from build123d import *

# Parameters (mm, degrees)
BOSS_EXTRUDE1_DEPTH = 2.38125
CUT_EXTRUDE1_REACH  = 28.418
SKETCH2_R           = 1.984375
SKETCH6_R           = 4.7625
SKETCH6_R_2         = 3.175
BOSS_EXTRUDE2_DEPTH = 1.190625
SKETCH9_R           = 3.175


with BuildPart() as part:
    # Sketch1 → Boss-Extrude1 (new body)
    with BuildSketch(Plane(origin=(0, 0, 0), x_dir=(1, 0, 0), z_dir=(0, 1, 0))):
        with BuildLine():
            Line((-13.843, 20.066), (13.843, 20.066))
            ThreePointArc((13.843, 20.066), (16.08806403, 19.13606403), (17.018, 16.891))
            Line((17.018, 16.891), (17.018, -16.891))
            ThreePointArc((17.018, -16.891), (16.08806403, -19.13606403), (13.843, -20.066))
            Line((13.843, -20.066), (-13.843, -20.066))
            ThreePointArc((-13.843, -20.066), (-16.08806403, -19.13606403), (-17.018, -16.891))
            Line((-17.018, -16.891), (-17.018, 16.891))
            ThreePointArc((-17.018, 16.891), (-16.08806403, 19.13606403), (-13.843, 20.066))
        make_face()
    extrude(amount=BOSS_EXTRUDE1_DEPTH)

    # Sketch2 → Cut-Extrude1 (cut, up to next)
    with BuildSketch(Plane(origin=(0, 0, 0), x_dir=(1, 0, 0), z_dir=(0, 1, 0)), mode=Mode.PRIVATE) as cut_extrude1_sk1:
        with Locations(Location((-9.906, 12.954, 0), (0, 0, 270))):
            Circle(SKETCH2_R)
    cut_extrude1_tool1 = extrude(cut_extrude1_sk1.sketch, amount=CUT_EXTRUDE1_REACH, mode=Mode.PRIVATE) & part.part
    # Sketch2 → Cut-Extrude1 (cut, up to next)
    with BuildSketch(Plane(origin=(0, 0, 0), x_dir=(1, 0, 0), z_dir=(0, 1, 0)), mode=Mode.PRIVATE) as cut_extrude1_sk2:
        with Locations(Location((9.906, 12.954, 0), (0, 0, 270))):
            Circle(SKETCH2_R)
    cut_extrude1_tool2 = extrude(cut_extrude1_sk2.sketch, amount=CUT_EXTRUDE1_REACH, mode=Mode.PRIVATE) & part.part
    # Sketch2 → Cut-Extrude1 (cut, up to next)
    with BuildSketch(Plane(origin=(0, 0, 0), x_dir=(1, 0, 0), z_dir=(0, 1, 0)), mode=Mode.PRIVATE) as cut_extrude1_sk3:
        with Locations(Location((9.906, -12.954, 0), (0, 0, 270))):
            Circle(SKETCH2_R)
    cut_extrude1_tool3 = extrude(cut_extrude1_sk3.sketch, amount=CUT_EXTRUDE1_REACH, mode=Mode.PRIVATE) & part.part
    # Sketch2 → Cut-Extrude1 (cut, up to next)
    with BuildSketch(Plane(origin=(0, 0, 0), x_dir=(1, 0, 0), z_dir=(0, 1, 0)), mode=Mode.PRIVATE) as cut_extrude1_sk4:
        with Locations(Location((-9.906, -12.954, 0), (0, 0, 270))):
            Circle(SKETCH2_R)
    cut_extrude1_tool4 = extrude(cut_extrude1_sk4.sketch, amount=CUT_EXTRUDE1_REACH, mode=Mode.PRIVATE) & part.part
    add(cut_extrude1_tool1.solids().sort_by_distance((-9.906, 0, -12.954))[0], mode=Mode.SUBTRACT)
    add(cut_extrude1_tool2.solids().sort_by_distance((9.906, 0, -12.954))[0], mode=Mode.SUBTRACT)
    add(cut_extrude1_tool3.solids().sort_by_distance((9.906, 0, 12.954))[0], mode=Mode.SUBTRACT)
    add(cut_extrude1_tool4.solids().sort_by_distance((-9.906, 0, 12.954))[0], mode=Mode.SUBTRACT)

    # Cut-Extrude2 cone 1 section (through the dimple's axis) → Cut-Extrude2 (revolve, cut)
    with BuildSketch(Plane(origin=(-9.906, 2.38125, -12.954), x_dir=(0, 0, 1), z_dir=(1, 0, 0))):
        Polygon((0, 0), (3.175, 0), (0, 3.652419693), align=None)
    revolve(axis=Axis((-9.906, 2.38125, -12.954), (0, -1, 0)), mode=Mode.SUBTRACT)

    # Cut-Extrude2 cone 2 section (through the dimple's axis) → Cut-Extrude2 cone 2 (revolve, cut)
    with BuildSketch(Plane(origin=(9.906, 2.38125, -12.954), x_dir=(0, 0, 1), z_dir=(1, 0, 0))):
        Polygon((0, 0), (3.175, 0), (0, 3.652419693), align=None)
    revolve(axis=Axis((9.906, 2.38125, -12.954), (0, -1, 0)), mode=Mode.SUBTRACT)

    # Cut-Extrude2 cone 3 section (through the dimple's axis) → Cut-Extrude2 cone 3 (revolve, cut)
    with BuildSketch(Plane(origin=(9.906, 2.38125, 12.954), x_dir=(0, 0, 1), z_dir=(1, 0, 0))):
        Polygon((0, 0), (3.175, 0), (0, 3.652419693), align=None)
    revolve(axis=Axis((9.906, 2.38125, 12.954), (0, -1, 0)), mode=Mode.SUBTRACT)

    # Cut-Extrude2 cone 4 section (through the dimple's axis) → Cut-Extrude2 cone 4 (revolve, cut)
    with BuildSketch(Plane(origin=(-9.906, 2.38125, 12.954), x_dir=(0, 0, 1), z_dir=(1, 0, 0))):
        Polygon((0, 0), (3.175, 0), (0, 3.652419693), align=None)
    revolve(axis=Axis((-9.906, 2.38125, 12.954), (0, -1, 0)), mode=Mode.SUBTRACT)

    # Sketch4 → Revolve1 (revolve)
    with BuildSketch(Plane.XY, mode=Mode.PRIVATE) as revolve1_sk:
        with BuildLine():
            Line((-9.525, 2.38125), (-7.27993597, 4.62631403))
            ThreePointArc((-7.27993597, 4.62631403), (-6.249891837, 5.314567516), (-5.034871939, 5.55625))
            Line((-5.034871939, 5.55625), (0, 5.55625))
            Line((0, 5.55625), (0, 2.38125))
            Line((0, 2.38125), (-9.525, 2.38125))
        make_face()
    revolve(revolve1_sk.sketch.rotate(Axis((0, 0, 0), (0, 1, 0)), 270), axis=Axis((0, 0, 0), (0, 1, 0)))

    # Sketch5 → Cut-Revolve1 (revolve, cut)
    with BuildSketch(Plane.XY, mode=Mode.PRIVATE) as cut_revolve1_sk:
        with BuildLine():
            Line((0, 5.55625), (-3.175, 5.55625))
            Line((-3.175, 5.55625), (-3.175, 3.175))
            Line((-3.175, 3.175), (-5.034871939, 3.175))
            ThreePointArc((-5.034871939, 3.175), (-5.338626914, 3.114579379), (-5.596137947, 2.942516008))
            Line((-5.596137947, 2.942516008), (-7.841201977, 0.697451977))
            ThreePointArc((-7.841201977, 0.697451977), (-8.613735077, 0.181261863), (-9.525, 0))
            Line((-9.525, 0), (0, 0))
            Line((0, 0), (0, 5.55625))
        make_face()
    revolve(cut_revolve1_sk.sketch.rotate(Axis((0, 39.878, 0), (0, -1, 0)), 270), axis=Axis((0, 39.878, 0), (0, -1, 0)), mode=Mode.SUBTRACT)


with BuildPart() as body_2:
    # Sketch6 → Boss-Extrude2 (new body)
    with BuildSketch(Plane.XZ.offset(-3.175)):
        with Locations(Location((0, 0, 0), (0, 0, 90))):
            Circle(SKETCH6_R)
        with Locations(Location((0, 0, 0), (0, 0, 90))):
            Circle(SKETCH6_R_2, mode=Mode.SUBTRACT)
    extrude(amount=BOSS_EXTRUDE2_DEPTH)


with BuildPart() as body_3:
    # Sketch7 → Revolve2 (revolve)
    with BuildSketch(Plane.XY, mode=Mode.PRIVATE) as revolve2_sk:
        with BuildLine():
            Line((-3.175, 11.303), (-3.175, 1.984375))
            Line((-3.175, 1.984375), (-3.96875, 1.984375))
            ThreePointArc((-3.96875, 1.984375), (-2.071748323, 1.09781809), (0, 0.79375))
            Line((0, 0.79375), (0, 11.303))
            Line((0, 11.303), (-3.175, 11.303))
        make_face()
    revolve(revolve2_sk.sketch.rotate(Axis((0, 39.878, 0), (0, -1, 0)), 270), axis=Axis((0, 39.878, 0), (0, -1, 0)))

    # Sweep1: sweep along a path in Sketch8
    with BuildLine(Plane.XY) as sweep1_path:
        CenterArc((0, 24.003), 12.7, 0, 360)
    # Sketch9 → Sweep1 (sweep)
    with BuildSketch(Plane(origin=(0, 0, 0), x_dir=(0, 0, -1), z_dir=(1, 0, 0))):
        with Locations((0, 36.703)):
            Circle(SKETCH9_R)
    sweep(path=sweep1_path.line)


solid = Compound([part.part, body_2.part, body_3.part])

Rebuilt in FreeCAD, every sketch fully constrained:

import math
import FreeCAD as App
import Part
import Sketcher

V = App.Vector
Q = App.Units.Quantity

doc = App.newDocument("Part")
body = doc.addObject("PartDesign::Body", "Body")

# Sketch on XZ plane
sketch1 = body.newObject("Sketcher::SketchObject", "Sketch")
sketch1.AttachmentSupport = (doc.getObject("XZ_Plane"), [""])
sketch1.MapMode = "FlatFace"
sketch1.addGeometry([
    Part.LineSegment(V(13.8, -20.1, 0), V(-13.8, -20.1, 0)),  # 0
    Part.ArcOfCircle(Part.Circle(V(-13.8, -16.9, 0), V(0, 0, 1), 3.2), math.radians(-180), math.radians(-90)),  # 1
    Part.LineSegment(V(-17, -16.9, 0), V(-17, 16.9, 0)),  # 2
    Part.ArcOfCircle(Part.Circle(V(-13.8, 16.9, 0), V(0, 0, 1), 3.2), math.radians(90), math.radians(180)),  # 3
    Part.LineSegment(V(-13.8, 20.1, 0), V(13.8, 20.1, 0)),  # 4
    Part.ArcOfCircle(Part.Circle(V(13.8, 16.9, 0), V(0, 0, 1), 3.2), math.radians(0), math.radians(90)),  # 5
    Part.LineSegment(V(17, 16.9, 0), V(17, -16.9, 0)),  # 6
    Part.ArcOfCircle(Part.Circle(V(13.8, -16.9, 0), V(0, 0, 1), 3.2), math.radians(-90), math.radians(0)),  # 7
], False)
sketch1.addConstraint([
    Sketcher.Constraint("Tangent", 0, 2, 1, 2),
    Sketcher.Constraint("Tangent", 1, 1, 2, 1),
    Sketcher.Constraint("Tangent", 2, 2, 3, 2),
    Sketcher.Constraint("Tangent", 3, 1, 4, 1),
    Sketcher.Constraint("Tangent", 4, 2, 5, 2),
    Sketcher.Constraint("Tangent", 5, 1, 6, 1),
    Sketcher.Constraint("Tangent", 6, 2, 7, 2),
    Sketcher.Constraint("Tangent", 7, 1, 0, 1),
    Sketcher.Constraint("Horizontal", 0),
    Sketcher.Constraint("Vertical", 2),
    Sketcher.Constraint("Horizontal", 4),
    Sketcher.Constraint("Vertical", 6),
    Sketcher.Constraint("Equal", 1, 3),
    Sketcher.Constraint("Equal", 3, 5),
    Sketcher.Constraint("Equal", 5, 7),
    Sketcher.Constraint("Symmetric", 1, 3, 5, 3, -1, 1),
    Sketcher.Constraint("Radius", 1, Q("0.125 in")),
    Sketcher.Constraint("DistanceX", 0, 2, 0, 1, Q("1.09 in")),
    Sketcher.Constraint("DistanceY", 2, 1, 2, 2, Q("1.33 in")),
])
pad1 = body.newObject("PartDesign::Pad", "Pad")
pad1.Profile = sketch1
pad1.Length = Q("0.09375 in")
pad1.Reversed = True

# Sketch on XZ plane
sketch2 = body.newObject("Sketcher::SketchObject", "Sketch001")
sketch2.AttachmentSupport = (doc.getObject("XZ_Plane"), [""])
sketch2.MapMode = "FlatFace"
sketch2.addGeometry(Part.Circle(V(-9.9, -13, 0), V(0, 0, 1), 2), False)
sketch2.addConstraint([
    Sketcher.Constraint("Diameter", 0, Q("0.15625 in")),
    Sketcher.Constraint("DistanceX", 0, 3, -1, 1, Q("0.39 in")),
    Sketcher.Constraint("DistanceY", 0, 3, -1, 1, Q("0.51 in")),
])
pocket1 = body.newObject("PartDesign::Pocket", "Pocket")
pocket1.Profile = sketch2
pocket1.Type = "UpToFirst"

# Sketch on XZ plane
sketch3 = body.newObject("Sketcher::SketchObject", "Sketch002")
sketch3.AttachmentSupport = (doc.getObject("XZ_Plane"), [""])
sketch3.MapMode = "FlatFace"
sketch3.addGeometry(Part.Circle(V(9.9, -13, 0), V(0, 0, 1), 2), False)
sketch3.addConstraint([
    Sketcher.Constraint("Diameter", 0, Q("0.15625 in")),
    Sketcher.Constraint("DistanceX", -1, 1, 0, 3, Q("0.39 in")),
    Sketcher.Constraint("DistanceY", 0, 3, -1, 1, Q("0.51 in")),
])
pocket2 = body.newObject("PartDesign::Pocket", "Pocket001")
pocket2.Profile = sketch3
pocket2.Type = "UpToFirst"

# Sketch on XZ plane
sketch4 = body.newObject("Sketcher::SketchObject", "Sketch003")
sketch4.AttachmentSupport = (doc.getObject("XZ_Plane"), [""])
sketch4.MapMode = "FlatFace"
sketch4.addGeometry(Part.Circle(V(9.9, 13, 0), V(0, 0, 1), 2), False)
sketch4.addConstraint([
    Sketcher.Constraint("Diameter", 0, Q("0.15625 in")),
    Sketcher.Constraint("DistanceX", -1, 1, 0, 3, Q("0.39 in")),
    Sketcher.Constraint("DistanceY", -1, 1, 0, 3, Q("0.51 in")),
])
pocket3 = body.newObject("PartDesign::Pocket", "Pocket002")
pocket3.Profile = sketch4
pocket3.Type = "UpToFirst"

# Sketch on XZ plane
sketch5 = body.newObject("Sketcher::SketchObject", "Sketch004")
sketch5.AttachmentSupport = (doc.getObject("XZ_Plane"), [""])
sketch5.MapMode = "FlatFace"
sketch5.addGeometry(Part.Circle(V(-9.9, 13, 0), V(0, 0, 1), 2), False)
sketch5.addConstraint([
    Sketcher.Constraint("Diameter", 0, Q("0.15625 in")),
    Sketcher.Constraint("DistanceX", 0, 3, -1, 1, Q("0.39 in")),
    Sketcher.Constraint("DistanceY", -1, 1, 0, 3, Q("0.51 in")),
])
pocket4 = body.newObject("PartDesign::Pocket", "Pocket003")
pocket4.Profile = sketch5
pocket4.Type = "UpToFirst"

# Sketch on YZ plane
sketch6 = body.newObject("Sketcher::SketchObject", "Sketch005")
sketch6.AttachmentSupport = (doc.getObject("YZ_Plane"), [""])
sketch6.MapMode = "FlatFace"
sketch6.AttachmentOffset = App.Placement(V(0, 0, -0.39 * 25.4), App.Rotation())
sketch6.addGeometry([
    Part.LineSegment(V(2.4, -13, 0), V(2.4, -9.8, 0)),
    Part.LineSegment(V(2.4, -9.8, 0), V(-1.3, -13, 0)),
    Part.LineSegment(V(-1.3, -13, 0), V(2.4, -13, 0)),
], False)
sketch6.addGeometry(Part.LineSegment(V(2.4, -13, 0), V(-1.3, -13, 0)), True)  # axis
sketch6.addConstraint([
    Sketcher.Constraint("Coincident", 0, 2, 1, 1),
    Sketcher.Constraint("Coincident", 1, 2, 2, 1),
    Sketcher.Constraint("Coincident", 2, 2, 0, 1),
    Sketcher.Constraint("Vertical", 0),
    Sketcher.Constraint("Horizontal", 2),
    Sketcher.Constraint("Horizontal", 3),
    Sketcher.Constraint("Coincident", 3, 1, 2, 2),
    Sketcher.Constraint("Equal", 2, 3),
    Sketcher.Constraint("Angle", 1, Q("-139 deg")),
    Sketcher.Constraint("DistanceY", 0, 1, 0, 2, Q("0.125 in")),
    Sketcher.Constraint("DistanceY", 1, 2, -1, 1, Q("0.51 in")),
    Sketcher.Constraint("DistanceX", -1, 1, 0, 2, Q("0.09375 in")),
])
groove = body.newObject("PartDesign::Groove", "Groove")
groove.Profile = sketch6
groove.ReferenceAxis = (sketch6, ["Axis0"])
groove.Angle = 360

# Sketch on YZ plane
sketch7 = body.newObject("Sketcher::SketchObject", "Sketch006")
sketch7.AttachmentSupport = (doc.getObject("YZ_Plane"), [""])
sketch7.MapMode = "FlatFace"
sketch7.AttachmentOffset = App.Placement(V(0, 0, 0.39 * 25.4), App.Rotation())
sketch7.addGeometry([
    Part.LineSegment(V(2.4, -13, 0), V(2.4, -9.8, 0)),
    Part.LineSegment(V(2.4, -9.8, 0), V(-1.3, -13, 0)),
    Part.LineSegment(V(-1.3, -13, 0), V(2.4, -13, 0)),
], False)
sketch7.addGeometry(Part.LineSegment(V(2.4, -13, 0), V(-1.3, -13, 0)), True)  # axis
sketch7.addConstraint([
    Sketcher.Constraint("Coincident", 0, 2, 1, 1),
    Sketcher.Constraint("Coincident", 1, 2, 2, 1),
    Sketcher.Constraint("Coincident", 2, 2, 0, 1),
    Sketcher.Constraint("Vertical", 0),
    Sketcher.Constraint("Horizontal", 2),
    Sketcher.Constraint("Horizontal", 3),
    Sketcher.Constraint("Coincident", 3, 1, 2, 2),
    Sketcher.Constraint("Equal", 2, 3),
    Sketcher.Constraint("Angle", 1, Q("-139 deg")),
    Sketcher.Constraint("DistanceY", 0, 1, 0, 2, Q("0.125 in")),
    Sketcher.Constraint("DistanceY", 1, 2, -1, 1, Q("0.51 in")),
    Sketcher.Constraint("DistanceX", -1, 1, 0, 2, Q("0.09375 in")),
])
groove2 = body.newObject("PartDesign::Groove", "Groove001")
groove2.Profile = sketch7
groove2.ReferenceAxis = (sketch7, ["Axis0"])
groove2.Angle = 360

# Sketch on YZ plane
sketch8 = body.newObject("Sketcher::SketchObject", "Sketch007")
sketch8.AttachmentSupport = (doc.getObject("YZ_Plane"), [""])
sketch8.MapMode = "FlatFace"
sketch8.AttachmentOffset = App.Placement(V(0, 0, 0.39 * 25.4), App.Rotation())
sketch8.addGeometry([
    Part.LineSegment(V(2.4, 13, 0), V(2.4, 16.1, 0)),
    Part.LineSegment(V(2.4, 16.1, 0), V(-1.3, 13, 0)),
    Part.LineSegment(V(-1.3, 13, 0), V(2.4, 13, 0)),
], False)
sketch8.addGeometry(Part.LineSegment(V(2.4, 13, 0), V(-1.3, 13, 0)), True)  # axis
sketch8.addConstraint([
    Sketcher.Constraint("Coincident", 0, 2, 1, 1),
    Sketcher.Constraint("Coincident", 1, 2, 2, 1),
    Sketcher.Constraint("Coincident", 2, 2, 0, 1),
    Sketcher.Constraint("Vertical", 0),
    Sketcher.Constraint("Horizontal", 2),
    Sketcher.Constraint("Horizontal", 3),
    Sketcher.Constraint("Coincident", 3, 1, 2, 2),
    Sketcher.Constraint("Equal", 2, 3),
    Sketcher.Constraint("Angle", 1, Q("-139 deg")),
    Sketcher.Constraint("DistanceY", 0, 1, 0, 2, Q("0.125 in")),
    Sketcher.Constraint("DistanceY", -1, 1, 1, 2, Q("0.51 in")),
    Sketcher.Constraint("DistanceX", -1, 1, 0, 2, Q("0.09375 in")),
])
groove3 = body.newObject("PartDesign::Groove", "Groove002")
groove3.Profile = sketch8
groove3.ReferenceAxis = (sketch8, ["Axis0"])
groove3.Angle = 360

# Sketch on YZ plane
sketch9 = body.newObject("Sketcher::SketchObject", "Sketch008")
sketch9.AttachmentSupport = (doc.getObject("YZ_Plane"), [""])
sketch9.MapMode = "FlatFace"
sketch9.AttachmentOffset = App.Placement(V(0, 0, -0.39 * 25.4), App.Rotation())
sketch9.addGeometry([
    Part.LineSegment(V(2.4, 13, 0), V(2.4, 16.1, 0)),
    Part.LineSegment(V(2.4, 16.1, 0), V(-1.3, 13, 0)),
    Part.LineSegment(V(-1.3, 13, 0), V(2.4, 13, 0)),
], False)
sketch9.addGeometry(Part.LineSegment(V(2.4, 13, 0), V(-1.3, 13, 0)), True)  # axis
sketch9.addConstraint([
    Sketcher.Constraint("Coincident", 0, 2, 1, 1),
    Sketcher.Constraint("Coincident", 1, 2, 2, 1),
    Sketcher.Constraint("Coincident", 2, 2, 0, 1),
    Sketcher.Constraint("Vertical", 0),
    Sketcher.Constraint("Horizontal", 2),
    Sketcher.Constraint("Horizontal", 3),
    Sketcher.Constraint("Coincident", 3, 1, 2, 2),
    Sketcher.Constraint("Equal", 2, 3),
    Sketcher.Constraint("Angle", 1, Q("-139 deg")),
    Sketcher.Constraint("DistanceY", 0, 1, 0, 2, Q("0.125 in")),
    Sketcher.Constraint("DistanceY", -1, 1, 1, 2, Q("0.51 in")),
    Sketcher.Constraint("DistanceX", -1, 1, 0, 2, Q("0.09375 in")),
])
groove4 = body.newObject("PartDesign::Groove", "Groove003")
groove4.Profile = sketch9
groove4.ReferenceAxis = (sketch9, ["Axis0"])
groove4.Angle = 360

# Sketch on XY plane
sketch10 = body.newObject("Sketcher::SketchObject", "Sketch009")
sketch10.AttachmentSupport = (doc.getObject("XY_Plane"), [""])
sketch10.MapMode = "FlatFace"
sketch10.addGeometry([
    Part.LineSegment(V(-7.3, 4.6, 0), V(-9.5, 2.4, 0)),  # 0
    Part.LineSegment(V(-9.5, 2.4, 0), V(0, 2.4, 0)),  # 1
    Part.LineSegment(V(0, 2.4, 0), V(0, 5.6, 0)),  # 2
    Part.LineSegment(V(0, 5.6, 0), V(-5, 5.6, 0)),  # 3
    Part.ArcOfCircle(Part.Circle(V(-5, 2.4, 0), V(0, 0, 1), 3.2), math.radians(90), math.radians(135)),  # 4
], False)
sketch10.addConstraint([
    Sketcher.Constraint("Coincident", 0, 2, 1, 1),
    Sketcher.Constraint("Coincident", 1, 2, 2, 1),
    Sketcher.Constraint("Coincident", 2, 2, 3, 1),
    Sketcher.Constraint("Tangent", 3, 2, 4, 1),
    Sketcher.Constraint("Tangent", 4, 2, 0, 1),
    Sketcher.Constraint("Horizontal", 1),
    Sketcher.Constraint("Vertical", 2),
    Sketcher.Constraint("Horizontal", 3),
    Sketcher.Constraint("PointOnObject", 1, 2, -2),
    Sketcher.Constraint("Horizontal", 4, 3, 0, 2),
    Sketcher.Constraint("Angle", 0, Q("-135 deg")),
    Sketcher.Constraint("Radius", 4, Q("0.125 in")),
    Sketcher.Constraint("DistanceX", 1, 1, 1, 2, Q("0.375 in")),
    Sketcher.Constraint("DistanceY", -1, 1, 4, 3, Q("0.09375 in")),
])
revolution = body.newObject("PartDesign::Revolution", "Revolution")
revolution.Profile = sketch10
revolution.ReferenceAxis = (sketch10, ["V_Axis"])
revolution.Angle = 360

# Sketch on XY plane
sketch11 = body.newObject("Sketcher::SketchObject", "Sketch010")
sketch11.AttachmentSupport = (doc.getObject("XY_Plane"), [""])
sketch11.MapMode = "FlatFace"
sketch11.addGeometry([
    Part.LineSegment(V(0, 5.6, 0), V(-3.2, 5.6, 0)),  # 0
    Part.LineSegment(V(-3.2, 5.6, 0), V(-3.2, 3.2, 0)),  # 1
    Part.LineSegment(V(-3.2, 3.2, 0), V(-5, 3.2, 0)),  # 2
    Part.ArcOfCircle(Part.Circle(V(-5, 2.4, 0), V(0, 0, 1), 0.8), math.radians(90), math.radians(135)),  # 3
    Part.LineSegment(V(-5.6, 2.9, 0), V(-7.8, 0.7, 0)),  # 4
    Part.ArcOfCircle(Part.Circle(V(-9.5, 2.4, 0), V(0, 0, 1), 2.4), math.radians(-90), math.radians(-45)),  # 5
    Part.LineSegment(V(-9.5, 0, 0), V(0, 0, 0)),  # 6
    Part.LineSegment(V(0, 0, 0), V(0, 5.6, 0)),  # 7
], False)
sketch11.addConstraint([
    Sketcher.Constraint("Coincident", 0, 2, 1, 1),
    Sketcher.Constraint("Coincident", 1, 2, 2, 1),
    Sketcher.Constraint("Tangent", 2, 2, 3, 1),
    Sketcher.Constraint("Tangent", 3, 2, 4, 1),
    Sketcher.Constraint("Tangent", 4, 2, 5, 2),
    Sketcher.Constraint("Tangent", 5, 1, 6, 1),
    Sketcher.Constraint("Coincident", 6, 2, 7, 1),
    Sketcher.Constraint("Coincident", 7, 2, 0, 1),
    Sketcher.Constraint("Horizontal", 0),
    Sketcher.Constraint("Vertical", 1),
    Sketcher.Constraint("Horizontal", 2),
    Sketcher.Constraint("Horizontal", 6),
    Sketcher.Constraint("Vertical", 7),
    Sketcher.Constraint("Coincident", 6, 2, -1, 1),
    Sketcher.Constraint("Horizontal", 3, 3, 5, 3),
    Sketcher.Constraint("Angle", 4, Q("-135 deg")),
    Sketcher.Constraint("Radius", 3, Q("0.03125 in")),
    Sketcher.Constraint("Radius", 5, Q("0.09375 in")),
    Sketcher.Constraint("DistanceX", 0, 2, 0, 1, Q("0.125 in")),
    Sketcher.Constraint("DistanceX", 6, 1, 6, 2, Q("0.375 in")),
    Sketcher.Constraint("DistanceY", 1, 2, 1, 1, Q("0.09375 in")),
])
groove5 = body.newObject("PartDesign::Groove", "Groove004")
groove5.Profile = sketch11
groove5.ReferenceAxis = (sketch11, ["V_Axis"])
groove5.Angle = 360
body2 = doc.addObject("PartDesign::Body", "Body001")

# Sketch on XZ plane
sketch12 = body2.newObject("Sketcher::SketchObject", "Sketch011")
sketch12.AttachmentSupport = (doc.getObject("XZ_Plane001"), [""])
sketch12.MapMode = "FlatFace"
sketch12.AttachmentOffset = App.Placement(V(0, 0, -0.125 * 25.4), App.Rotation())
sketch12.addGeometry([
    Part.Circle(V(0, 0, 0), V(0, 0, 1), 4.8),
    Part.Circle(V(0, 0, 0), V(0, 0, 1), 3.2),
], False)
sketch12.addConstraint([
    Sketcher.Constraint("Coincident", 0, 3, -1, 1),
    Sketcher.Constraint("Coincident", 1, 3, -1, 1),
    Sketcher.Constraint("Diameter", 1, Q("0.25 in")),
    Sketcher.Constraint("Diameter", 0, Q("0.375 in")),
])
pad2 = body2.newObject("PartDesign::Pad", "Pad001")
pad2.Profile = sketch12
pad2.Length = Q("0.046875 in")
body3 = doc.addObject("PartDesign::Body", "Body002")

# Sketch on XY plane
sketch13 = body3.newObject("Sketcher::SketchObject", "Sketch012")
sketch13.AttachmentSupport = (doc.getObject("XY_Plane002"), [""])
sketch13.MapMode = "FlatFace"
sketch13.addGeometry([
    Part.LineSegment(V(-3.2, 11.3, 0), V(-3.2, 2, 0)),  # 0
    Part.LineSegment(V(-3.2, 2, 0), V(-4, 2, 0)),  # 1
    Part.ArcOfCircle(Part.Circle(V(0, 8, 0), V(0, 0, 1), 7.2), math.radians(-123), math.radians(-90)),  # 2
    Part.LineSegment(V(0, 0.8, 0), V(0, 11.3, 0)),  # 3
    Part.LineSegment(V(0, 11.3, 0), V(-3.2, 11.3, 0)),  # 4
], False)
sketch13.addConstraint([
    Sketcher.Constraint("Coincident", 0, 2, 1, 1),
    Sketcher.Constraint("Coincident", 1, 2, 2, 1),
    Sketcher.Constraint("Coincident", 2, 2, 3, 1),
    Sketcher.Constraint("Coincident", 3, 2, 4, 1),
    Sketcher.Constraint("Coincident", 4, 2, 0, 1),
    Sketcher.Constraint("Vertical", 0),
    Sketcher.Constraint("Horizontal", 1),
    Sketcher.Constraint("Vertical", 3),
    Sketcher.Constraint("Horizontal", 4),
    Sketcher.Constraint("PointOnObject", 2, 3, -2),
    Sketcher.Constraint("PointOnObject", 2, 2, -2),
    Sketcher.Constraint("DistanceX", 1, 2, 1, 1, Q("0.03125 in")),
    Sketcher.Constraint("DistanceX", 4, 2, 4, 1, Q("0.125 in")),
    Sketcher.Constraint("DistanceY", -1, 1, 0, 2, Q("0.078125 in")),
    Sketcher.Constraint("DistanceY", -1, 1, 2, 2, Q("0.03125 in")),
    Sketcher.Constraint("DistanceY", -1, 1, 3, 2, Q("0.445 in")),
])
revolution2 = body3.newObject("PartDesign::Revolution", "Revolution001")
revolution2.Profile = sketch13
revolution2.ReferenceAxis = (sketch13, ["V_Axis"])
revolution2.Angle = 360

# Sketch on YZ plane
sketch14 = body3.newObject("Sketcher::SketchObject", "Sketch013")
sketch14.AttachmentSupport = (doc.getObject("YZ_Plane002"), [""])
sketch14.MapMode = "FlatFace"
sketch14.addGeometry(Part.Circle(V(36.7, 0, 0), V(0, 0, 1), 3.2), False)
sketch14.addConstraint([
    Sketcher.Constraint("PointOnObject", 0, 3, -1),
    Sketcher.Constraint("Diameter", 0, Q("0.25 in")),
    Sketcher.Constraint("DistanceX", -1, 1, 0, 3, Q("1.445 in")),
])

# Sketch on XY plane
sketch15 = body3.newObject("Sketcher::SketchObject", "Sketch014")
sketch15.AttachmentSupport = (doc.getObject("XY_Plane002"), [""])
sketch15.MapMode = "FlatFace"
sketch15.addGeometry(Part.Circle(V(0, 24, 0), V(0, 0, 1), 13), False)
sketch15.addConstraint([
    Sketcher.Constraint("PointOnObject", 0, 3, -2),
    Sketcher.Constraint("Diameter", 0, Q("1 in")),
    Sketcher.Constraint("DistanceY", -1, 1, 0, 3, Q("0.945 in")),
])
doc.recompute()

additivepipe = body3.newObject("PartDesign::AdditivePipe", "AdditivePipe")
additivepipe.Profile = sketch14
additivepipe.Spine = (sketch15, ["Edge1"])

doc.recompute()
